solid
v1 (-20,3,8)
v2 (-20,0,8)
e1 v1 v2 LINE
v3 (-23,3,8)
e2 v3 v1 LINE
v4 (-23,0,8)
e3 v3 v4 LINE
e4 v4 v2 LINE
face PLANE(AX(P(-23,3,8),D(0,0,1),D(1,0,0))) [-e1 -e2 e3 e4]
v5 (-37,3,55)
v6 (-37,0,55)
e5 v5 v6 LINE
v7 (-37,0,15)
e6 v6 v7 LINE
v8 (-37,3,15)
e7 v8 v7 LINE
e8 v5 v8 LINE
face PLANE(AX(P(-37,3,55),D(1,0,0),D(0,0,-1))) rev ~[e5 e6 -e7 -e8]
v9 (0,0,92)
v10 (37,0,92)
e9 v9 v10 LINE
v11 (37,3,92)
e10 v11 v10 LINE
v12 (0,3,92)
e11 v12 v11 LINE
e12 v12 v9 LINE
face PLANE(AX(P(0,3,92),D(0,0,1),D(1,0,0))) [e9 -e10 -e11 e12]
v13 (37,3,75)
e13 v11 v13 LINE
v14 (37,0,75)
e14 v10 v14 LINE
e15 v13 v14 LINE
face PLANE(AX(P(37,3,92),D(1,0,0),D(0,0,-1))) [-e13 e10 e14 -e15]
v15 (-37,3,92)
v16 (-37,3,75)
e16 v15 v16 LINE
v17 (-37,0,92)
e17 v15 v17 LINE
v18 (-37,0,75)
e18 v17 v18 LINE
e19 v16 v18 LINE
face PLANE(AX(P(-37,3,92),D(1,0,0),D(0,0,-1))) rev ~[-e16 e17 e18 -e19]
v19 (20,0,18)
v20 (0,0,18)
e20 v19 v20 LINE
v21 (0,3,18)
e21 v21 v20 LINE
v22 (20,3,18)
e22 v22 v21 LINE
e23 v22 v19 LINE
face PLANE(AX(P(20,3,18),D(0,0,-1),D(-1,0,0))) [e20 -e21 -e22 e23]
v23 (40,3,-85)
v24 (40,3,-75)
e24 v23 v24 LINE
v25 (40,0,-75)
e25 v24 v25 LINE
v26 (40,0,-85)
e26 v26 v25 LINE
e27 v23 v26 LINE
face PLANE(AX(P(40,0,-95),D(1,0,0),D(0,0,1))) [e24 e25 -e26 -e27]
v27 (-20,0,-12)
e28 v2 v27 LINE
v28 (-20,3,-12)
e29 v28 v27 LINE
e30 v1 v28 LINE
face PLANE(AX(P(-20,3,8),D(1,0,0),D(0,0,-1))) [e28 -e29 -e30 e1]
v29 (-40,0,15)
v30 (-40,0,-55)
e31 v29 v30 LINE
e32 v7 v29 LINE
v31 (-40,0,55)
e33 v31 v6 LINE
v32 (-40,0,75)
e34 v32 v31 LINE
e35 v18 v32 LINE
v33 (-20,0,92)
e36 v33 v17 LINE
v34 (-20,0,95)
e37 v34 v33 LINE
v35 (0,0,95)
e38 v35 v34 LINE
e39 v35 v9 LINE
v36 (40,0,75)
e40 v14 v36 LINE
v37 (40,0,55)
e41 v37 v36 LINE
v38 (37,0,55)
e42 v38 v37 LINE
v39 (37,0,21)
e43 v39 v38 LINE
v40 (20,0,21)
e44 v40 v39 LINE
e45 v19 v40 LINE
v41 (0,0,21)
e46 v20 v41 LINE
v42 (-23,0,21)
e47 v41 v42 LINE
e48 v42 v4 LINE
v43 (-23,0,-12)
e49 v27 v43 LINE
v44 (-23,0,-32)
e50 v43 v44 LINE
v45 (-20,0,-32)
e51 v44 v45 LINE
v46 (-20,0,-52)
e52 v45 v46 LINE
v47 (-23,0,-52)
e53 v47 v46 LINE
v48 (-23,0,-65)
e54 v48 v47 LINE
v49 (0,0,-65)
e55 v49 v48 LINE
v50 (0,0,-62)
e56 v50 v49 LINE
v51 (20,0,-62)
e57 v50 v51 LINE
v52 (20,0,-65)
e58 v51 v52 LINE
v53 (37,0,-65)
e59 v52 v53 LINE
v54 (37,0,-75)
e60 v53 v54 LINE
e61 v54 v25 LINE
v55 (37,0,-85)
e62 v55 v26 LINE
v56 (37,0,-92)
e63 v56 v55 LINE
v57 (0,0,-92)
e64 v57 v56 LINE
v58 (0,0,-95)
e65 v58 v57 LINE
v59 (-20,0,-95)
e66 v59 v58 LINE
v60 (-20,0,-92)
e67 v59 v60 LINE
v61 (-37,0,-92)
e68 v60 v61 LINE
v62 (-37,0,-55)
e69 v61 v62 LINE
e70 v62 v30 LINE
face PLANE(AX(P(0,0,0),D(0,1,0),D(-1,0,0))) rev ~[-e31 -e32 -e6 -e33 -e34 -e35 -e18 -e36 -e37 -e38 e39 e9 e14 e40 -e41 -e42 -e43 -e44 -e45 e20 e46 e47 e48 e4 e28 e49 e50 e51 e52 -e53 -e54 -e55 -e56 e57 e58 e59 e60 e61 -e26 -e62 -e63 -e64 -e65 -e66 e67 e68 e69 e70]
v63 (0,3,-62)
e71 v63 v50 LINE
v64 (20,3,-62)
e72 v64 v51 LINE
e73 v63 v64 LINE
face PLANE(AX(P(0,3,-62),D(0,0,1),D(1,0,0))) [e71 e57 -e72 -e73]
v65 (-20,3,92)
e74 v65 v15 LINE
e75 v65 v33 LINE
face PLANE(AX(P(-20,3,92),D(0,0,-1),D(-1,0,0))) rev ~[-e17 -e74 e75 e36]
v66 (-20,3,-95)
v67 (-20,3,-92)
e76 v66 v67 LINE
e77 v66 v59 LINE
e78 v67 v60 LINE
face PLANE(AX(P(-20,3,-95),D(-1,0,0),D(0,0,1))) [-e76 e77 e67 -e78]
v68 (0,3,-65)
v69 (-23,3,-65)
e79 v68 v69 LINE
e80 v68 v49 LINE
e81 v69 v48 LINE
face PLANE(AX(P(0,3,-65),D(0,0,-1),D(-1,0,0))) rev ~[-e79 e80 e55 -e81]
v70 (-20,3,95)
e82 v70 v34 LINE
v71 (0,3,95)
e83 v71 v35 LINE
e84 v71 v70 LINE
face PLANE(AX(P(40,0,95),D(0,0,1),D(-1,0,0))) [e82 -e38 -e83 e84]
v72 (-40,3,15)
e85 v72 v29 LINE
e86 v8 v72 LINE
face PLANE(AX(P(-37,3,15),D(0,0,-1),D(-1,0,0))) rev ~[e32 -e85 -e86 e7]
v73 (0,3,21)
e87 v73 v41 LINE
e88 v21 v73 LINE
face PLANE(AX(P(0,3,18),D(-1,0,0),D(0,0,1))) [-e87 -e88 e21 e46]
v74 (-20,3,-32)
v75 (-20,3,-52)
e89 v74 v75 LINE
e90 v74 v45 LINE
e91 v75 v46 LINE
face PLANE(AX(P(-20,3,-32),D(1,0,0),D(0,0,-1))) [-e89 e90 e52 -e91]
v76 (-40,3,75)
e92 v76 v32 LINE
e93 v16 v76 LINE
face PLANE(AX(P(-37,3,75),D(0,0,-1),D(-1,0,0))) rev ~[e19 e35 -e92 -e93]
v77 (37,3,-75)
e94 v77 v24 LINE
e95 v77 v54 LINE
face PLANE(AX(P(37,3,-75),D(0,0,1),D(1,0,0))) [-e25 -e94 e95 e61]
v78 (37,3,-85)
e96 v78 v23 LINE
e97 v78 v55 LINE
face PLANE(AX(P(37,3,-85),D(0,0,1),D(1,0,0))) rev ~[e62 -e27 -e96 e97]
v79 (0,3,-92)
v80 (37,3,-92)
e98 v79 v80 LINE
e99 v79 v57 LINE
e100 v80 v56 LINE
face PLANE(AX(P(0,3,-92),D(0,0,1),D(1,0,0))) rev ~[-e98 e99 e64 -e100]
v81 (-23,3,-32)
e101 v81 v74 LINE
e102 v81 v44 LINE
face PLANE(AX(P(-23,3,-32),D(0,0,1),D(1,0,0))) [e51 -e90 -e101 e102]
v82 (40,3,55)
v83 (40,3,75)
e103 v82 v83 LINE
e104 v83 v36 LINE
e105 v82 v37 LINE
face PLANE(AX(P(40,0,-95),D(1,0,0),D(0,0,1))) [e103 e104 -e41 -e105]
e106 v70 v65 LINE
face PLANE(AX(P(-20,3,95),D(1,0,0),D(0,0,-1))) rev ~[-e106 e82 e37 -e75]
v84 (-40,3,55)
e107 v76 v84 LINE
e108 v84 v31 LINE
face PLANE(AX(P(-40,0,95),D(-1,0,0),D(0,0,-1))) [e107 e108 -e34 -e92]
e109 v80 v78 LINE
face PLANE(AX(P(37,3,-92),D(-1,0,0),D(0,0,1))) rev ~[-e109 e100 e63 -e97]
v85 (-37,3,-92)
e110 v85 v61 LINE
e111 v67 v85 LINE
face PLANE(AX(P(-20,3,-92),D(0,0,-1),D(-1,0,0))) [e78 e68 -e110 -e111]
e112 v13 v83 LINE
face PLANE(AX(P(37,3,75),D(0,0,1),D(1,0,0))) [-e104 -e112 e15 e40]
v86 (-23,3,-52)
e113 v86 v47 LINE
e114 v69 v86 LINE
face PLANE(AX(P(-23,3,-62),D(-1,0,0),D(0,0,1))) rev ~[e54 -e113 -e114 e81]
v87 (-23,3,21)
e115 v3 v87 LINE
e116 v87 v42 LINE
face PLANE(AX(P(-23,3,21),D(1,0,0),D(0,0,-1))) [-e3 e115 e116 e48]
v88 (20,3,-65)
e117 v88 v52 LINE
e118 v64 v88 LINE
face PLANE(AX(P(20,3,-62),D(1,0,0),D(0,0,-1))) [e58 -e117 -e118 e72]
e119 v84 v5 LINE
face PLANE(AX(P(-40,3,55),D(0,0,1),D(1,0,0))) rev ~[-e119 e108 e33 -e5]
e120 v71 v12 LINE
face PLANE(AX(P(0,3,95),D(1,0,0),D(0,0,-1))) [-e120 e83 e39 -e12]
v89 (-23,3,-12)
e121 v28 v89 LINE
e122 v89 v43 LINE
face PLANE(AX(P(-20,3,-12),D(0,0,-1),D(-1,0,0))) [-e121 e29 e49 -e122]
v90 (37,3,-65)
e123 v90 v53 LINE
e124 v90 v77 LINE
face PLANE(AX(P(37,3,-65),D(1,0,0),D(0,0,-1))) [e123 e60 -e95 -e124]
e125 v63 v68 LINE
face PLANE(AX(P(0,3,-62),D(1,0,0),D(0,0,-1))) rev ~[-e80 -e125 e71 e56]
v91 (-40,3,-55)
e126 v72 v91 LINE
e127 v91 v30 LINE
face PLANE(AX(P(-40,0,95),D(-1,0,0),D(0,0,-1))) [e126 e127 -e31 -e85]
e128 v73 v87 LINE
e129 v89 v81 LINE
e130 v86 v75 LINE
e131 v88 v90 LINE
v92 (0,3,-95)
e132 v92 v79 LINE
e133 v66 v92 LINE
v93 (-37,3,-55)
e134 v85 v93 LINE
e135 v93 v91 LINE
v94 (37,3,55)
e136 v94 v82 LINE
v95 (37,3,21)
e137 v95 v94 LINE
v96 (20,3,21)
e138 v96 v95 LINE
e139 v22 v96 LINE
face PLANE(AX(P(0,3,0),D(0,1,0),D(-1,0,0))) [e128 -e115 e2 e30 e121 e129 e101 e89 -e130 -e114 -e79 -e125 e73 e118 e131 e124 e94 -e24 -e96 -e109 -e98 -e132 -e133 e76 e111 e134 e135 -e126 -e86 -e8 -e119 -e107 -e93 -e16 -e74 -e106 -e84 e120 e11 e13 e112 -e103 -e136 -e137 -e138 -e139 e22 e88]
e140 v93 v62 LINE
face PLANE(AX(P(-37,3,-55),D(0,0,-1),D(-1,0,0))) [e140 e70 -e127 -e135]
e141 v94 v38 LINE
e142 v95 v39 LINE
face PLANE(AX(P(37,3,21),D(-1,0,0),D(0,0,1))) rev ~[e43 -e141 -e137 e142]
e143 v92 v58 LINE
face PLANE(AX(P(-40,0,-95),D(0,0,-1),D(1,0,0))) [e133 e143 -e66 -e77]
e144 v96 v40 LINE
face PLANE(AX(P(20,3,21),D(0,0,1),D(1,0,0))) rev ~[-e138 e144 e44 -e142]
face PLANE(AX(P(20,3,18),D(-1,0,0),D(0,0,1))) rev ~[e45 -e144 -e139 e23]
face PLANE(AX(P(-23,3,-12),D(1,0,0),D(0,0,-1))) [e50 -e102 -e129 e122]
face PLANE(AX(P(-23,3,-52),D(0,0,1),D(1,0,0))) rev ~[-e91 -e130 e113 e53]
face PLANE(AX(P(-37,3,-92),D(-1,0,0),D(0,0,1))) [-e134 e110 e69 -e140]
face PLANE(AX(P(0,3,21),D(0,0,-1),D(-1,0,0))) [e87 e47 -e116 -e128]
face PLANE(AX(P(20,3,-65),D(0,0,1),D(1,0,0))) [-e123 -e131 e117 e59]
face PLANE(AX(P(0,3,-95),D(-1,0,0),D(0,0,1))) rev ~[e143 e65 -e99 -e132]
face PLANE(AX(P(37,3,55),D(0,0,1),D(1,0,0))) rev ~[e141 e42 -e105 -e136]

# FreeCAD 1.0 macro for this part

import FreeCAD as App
import Part
import Sketcher


def add_polygon(sketch, points):
    """Adds a closed chain of lines whose ends are joined by coincident constraints."""
    first, n = sketch.GeometryCount, len(points)
    for a, b in zip(points, points[1:] + points[:1]):
        sketch.addGeometry(Part.LineSegment(App.Vector(*a, 0), App.Vector(*b, 0)), False)
    for i in range(n):
        sketch.addConstraint(Sketcher.Constraint("Coincident", first + i, 2, first + (i + 1) % n, 1))

doc = App.newDocument("Part")
body = doc.addObject("PartDesign::Body", "Body")

sketch1 = body.newObject("Sketcher::SketchObject", "Sketch")
sketch1.AttachmentSupport = (doc.getObject("XZ_Plane"), [""])
sketch1.MapMode = "FlatFace"
add_polygon(sketch1, [(-40, 95), (40, 95), (40, -95), (-40, -95)])
sketch1.addConstraint([
    Sketcher.Constraint("Horizontal", 0),
    Sketcher.Constraint("Vertical", 1),
    Sketcher.Constraint("Horizontal", 2),
    Sketcher.Constraint("Vertical", 3),
    Sketcher.Constraint("Symmetric", 0, 2, 2, 2, -1, 1),
    Sketcher.Constraint("DistanceX", 0, 1, 0, 2, 80.0),
    Sketcher.Constraint("DistanceY", 1, 2, 1, 1, 190.0),
])
pad1 = body.newObject("PartDesign::Pad", "Pad")
pad1.Profile = sketch1
pad1.Length = 3
pad1.Reversed = True

sketch2 = body.newObject("Sketcher::SketchObject", "Sketch001")
sketch2.AttachmentSupport = (doc.getObject("XZ_Plane"), [""])
sketch2.MapMode = "FlatFace"
sketch2.AttachmentOffset = App.Placement(App.Vector(0, 0, -3), App.Rotation())
add_polygon(sketch2, [(40, -95), (0, -95), (0, -92), (37, -92), (37, -85), (40, -85)])
add_polygon(sketch2, [(-20, -92), (-20, -95), (-40, -95), (-40, -55), (-37, -55), (-37, -92)])
add_polygon(sketch2, [(40, -75), (37, -75), (37, -65), (20, -65), (20, -62), (0, -62), (0, -65), (-23, -65), (-23, -52), (-20, -52), (-20, -32), (-23, -32), (-23, -12), (-20, -12), (-20, 8), (-23, 8), (-23, 21), (0, 21), (0, 18), (20, 18), (20, 21), (37, 21), (37, 55), (40, 55)])
add_polygon(sketch2, [(-37, 15), (-40, 15), (-40, 55), (-37, 55)])
add_polygon(sketch2, [(40, 75), (37, 75), (37, 92), (0, 92), (0, 95), (40, 95)])
add_polygon(sketch2, [(-37, 75), (-40, 75), (-40, 95), (-20, 95), (-20, 92), (-37, 92)])
sketch2.addConstraint([
    Sketcher.Constraint("Horizontal", 0),
    Sketcher.Constraint("Vertical", 1),
    Sketcher.Constraint("Horizontal", 2),
    Sketcher.Constraint("Vertical", 3),
    Sketcher.Constraint("Horizontal", 4),
    Sketcher.Constraint("Vertical", 5),
    Sketcher.Constraint("Vertical", 6),
    Sketcher.Constraint("Horizontal", 7),
    Sketcher.Constraint("Vertical", 8),
    Sketcher.Constraint("Horizontal", 9),
    Sketcher.Constraint("Vertical", 10),
    Sketcher.Constraint("Horizontal", 11),
    Sketcher.Constraint("Horizontal", 12),
    Sketcher.Constraint("Vertical", 13),
    Sketcher.Constraint("Horizontal", 14),
    Sketcher.Constraint("Vertical", 15),
    Sketcher.Constraint("Horizontal", 16),
    Sketcher.Constraint("Vertical", 17),
    Sketcher.Constraint("Horizontal", 18),
    Sketcher.Constraint("Vertical", 19),
    Sketcher.Constraint("Horizontal", 20),
    Sketcher.Constraint("Vertical", 21),
    Sketcher.Constraint("Horizontal", 22),
    Sketcher.Constraint("Vertical", 23),
    Sketcher.Constraint("Horizontal", 24),
    Sketcher.Constraint("Vertical", 25),
    Sketcher.Constraint("Horizontal", 26),
    Sketcher.Constraint("Vertical", 27),
    Sketcher.Constraint("Horizontal", 28),
    Sketcher.Constraint("Vertical", 29),
    Sketcher.Constraint("Horizontal", 30),
    Sketcher.Constraint("Vertical", 31),
    Sketcher.Constraint("Horizontal", 32),
    Sketcher.Constraint("Vertical", 33),
    Sketcher.Constraint("Horizontal", 34),
    Sketcher.Constraint("Vertical", 35),
    Sketcher.Constraint("Horizontal", 36),
    Sketcher.Constraint("Vertical", 37),
    Sketcher.Constraint("Horizontal", 38),
    Sketcher.Constraint("Vertical", 39),
    Sketcher.Constraint("Horizontal", 40),
    Sketcher.Constraint("Vertical", 41),
    Sketcher.Constraint("Horizontal", 42),
    Sketcher.Constraint("Vertical", 43),
    Sketcher.Constraint("Horizontal", 44),
    Sketcher.Constraint("Vertical", 45),
    Sketcher.Constraint("Horizontal", 46),
    Sketcher.Constraint("Vertical", 47),
    Sketcher.Constraint("Horizontal", 48),
    Sketcher.Constraint("Vertical", 49),
    Sketcher.Constraint("Horizontal", 50),
    Sketcher.Constraint("Vertical", 51),
    Sketcher.Constraint("Symmetric", 9, 2, 33, 2, -1, 1),
    Sketcher.Constraint("Symmetric", 10, 2, 41, 2, -1, 1),
    Sketcher.Constraint("Symmetric", 1, 2, 42, 2, -1, 1),
    Sketcher.Constraint("Symmetric", 7, 2, 44, 2, -1, 1),
    Sketcher.Constraint("Symmetric", 35, 2, 46, 2, -1, 1),
    Sketcher.Constraint("Symmetric", 5, 2, 47, 2, -1, 1),
    Sketcher.Constraint("Symmetric", 2, 2, 50, 2, -1, 1),
    Sketcher.Constraint("Symmetric", 5, 2, 7, 2, -2),
    Sketcher.Constraint("Symmetric", 34, 2, 37, 2, -2),
    Sketcher.Constraint("Symmetric", 40, 2, 51, 2, -2),
    Sketcher.Constraint("PointOnObject", 0, 2, -2),
    Sketcher.Constraint("PointOnObject", 16, 2, -2),
    Sketcher.Constraint("PointOnObject", 28, 2, -2),
    Sketcher.Constraint("Horizontal", 14, 2, 17, 2),
    Sketcher.Constraint("Horizontal", 28, 2, 31, 2),
    Sketcher.Constraint("Vertical", 3, 2, 12, 2),
    Sketcher.Constraint("Vertical", 11, 2, 20, 2),
    Sketcher.Constraint("Vertical", 19, 2, 22, 2),
    Sketcher.Constraint("Vertical", 21, 2, 24, 2),
    Sketcher.Constraint("Vertical", 23, 2, 26, 2),
    Sketcher.Constraint("Vertical", 15, 2, 30, 2),
    Sketcher.Constraint("Vertical", 10, 2, 38, 2),
    Sketcher.Constraint("Vertical", 25, 2, 48, 2),
    Sketcher.Constraint("Equal", 11, 14),
    Sketcher.Constraint("Equal", 7, 16),
    Sketcher.Constraint("Equal", 12, 20),
    Sketcher.Constraint("Equal", 46, 1),
    Sketcher.Constraint("Equal", 44, 8),
    Sketcher.Constraint("Equal", 5, 13),
    Sketcher.Constraint("Equal", 6, 15),
    Sketcher.Constraint("Equal", 48, 21),
    Sketcher.Constraint("Equal", 21, 23),
    Sketcher.Constraint("Equal", 23, 25),
    Sketcher.Constraint("Equal", 19, 27),
    Sketcher.Constraint("Equal", 17, 29),
    Sketcher.Constraint("Equal", 8, 37),
    Sketcher.Constraint("Equal", 50, 41),
    Sketcher.Constraint("DistanceX", 0, 2, 0, 1, 40.0),
    Sketcher.Constraint("DistanceX", 4, 1, 4, 2, 3.0),
    Sketcher.Constraint("DistanceY", 3, 1, 3, 2, 7.0),
    Sketcher.Constraint("DistanceY", 9, 2, 19, 2, 3.0),
    Sketcher.Constraint("DistanceY", 26, 2, 36, 2, 7.0),
])
pocket1 = body.newObject("PartDesign::Pocket", "Pocket")
pocket1.Profile = sketch2
pocket1.Type = "ThroughAll"
pocket1.Reversed = True

doc.recompute()
